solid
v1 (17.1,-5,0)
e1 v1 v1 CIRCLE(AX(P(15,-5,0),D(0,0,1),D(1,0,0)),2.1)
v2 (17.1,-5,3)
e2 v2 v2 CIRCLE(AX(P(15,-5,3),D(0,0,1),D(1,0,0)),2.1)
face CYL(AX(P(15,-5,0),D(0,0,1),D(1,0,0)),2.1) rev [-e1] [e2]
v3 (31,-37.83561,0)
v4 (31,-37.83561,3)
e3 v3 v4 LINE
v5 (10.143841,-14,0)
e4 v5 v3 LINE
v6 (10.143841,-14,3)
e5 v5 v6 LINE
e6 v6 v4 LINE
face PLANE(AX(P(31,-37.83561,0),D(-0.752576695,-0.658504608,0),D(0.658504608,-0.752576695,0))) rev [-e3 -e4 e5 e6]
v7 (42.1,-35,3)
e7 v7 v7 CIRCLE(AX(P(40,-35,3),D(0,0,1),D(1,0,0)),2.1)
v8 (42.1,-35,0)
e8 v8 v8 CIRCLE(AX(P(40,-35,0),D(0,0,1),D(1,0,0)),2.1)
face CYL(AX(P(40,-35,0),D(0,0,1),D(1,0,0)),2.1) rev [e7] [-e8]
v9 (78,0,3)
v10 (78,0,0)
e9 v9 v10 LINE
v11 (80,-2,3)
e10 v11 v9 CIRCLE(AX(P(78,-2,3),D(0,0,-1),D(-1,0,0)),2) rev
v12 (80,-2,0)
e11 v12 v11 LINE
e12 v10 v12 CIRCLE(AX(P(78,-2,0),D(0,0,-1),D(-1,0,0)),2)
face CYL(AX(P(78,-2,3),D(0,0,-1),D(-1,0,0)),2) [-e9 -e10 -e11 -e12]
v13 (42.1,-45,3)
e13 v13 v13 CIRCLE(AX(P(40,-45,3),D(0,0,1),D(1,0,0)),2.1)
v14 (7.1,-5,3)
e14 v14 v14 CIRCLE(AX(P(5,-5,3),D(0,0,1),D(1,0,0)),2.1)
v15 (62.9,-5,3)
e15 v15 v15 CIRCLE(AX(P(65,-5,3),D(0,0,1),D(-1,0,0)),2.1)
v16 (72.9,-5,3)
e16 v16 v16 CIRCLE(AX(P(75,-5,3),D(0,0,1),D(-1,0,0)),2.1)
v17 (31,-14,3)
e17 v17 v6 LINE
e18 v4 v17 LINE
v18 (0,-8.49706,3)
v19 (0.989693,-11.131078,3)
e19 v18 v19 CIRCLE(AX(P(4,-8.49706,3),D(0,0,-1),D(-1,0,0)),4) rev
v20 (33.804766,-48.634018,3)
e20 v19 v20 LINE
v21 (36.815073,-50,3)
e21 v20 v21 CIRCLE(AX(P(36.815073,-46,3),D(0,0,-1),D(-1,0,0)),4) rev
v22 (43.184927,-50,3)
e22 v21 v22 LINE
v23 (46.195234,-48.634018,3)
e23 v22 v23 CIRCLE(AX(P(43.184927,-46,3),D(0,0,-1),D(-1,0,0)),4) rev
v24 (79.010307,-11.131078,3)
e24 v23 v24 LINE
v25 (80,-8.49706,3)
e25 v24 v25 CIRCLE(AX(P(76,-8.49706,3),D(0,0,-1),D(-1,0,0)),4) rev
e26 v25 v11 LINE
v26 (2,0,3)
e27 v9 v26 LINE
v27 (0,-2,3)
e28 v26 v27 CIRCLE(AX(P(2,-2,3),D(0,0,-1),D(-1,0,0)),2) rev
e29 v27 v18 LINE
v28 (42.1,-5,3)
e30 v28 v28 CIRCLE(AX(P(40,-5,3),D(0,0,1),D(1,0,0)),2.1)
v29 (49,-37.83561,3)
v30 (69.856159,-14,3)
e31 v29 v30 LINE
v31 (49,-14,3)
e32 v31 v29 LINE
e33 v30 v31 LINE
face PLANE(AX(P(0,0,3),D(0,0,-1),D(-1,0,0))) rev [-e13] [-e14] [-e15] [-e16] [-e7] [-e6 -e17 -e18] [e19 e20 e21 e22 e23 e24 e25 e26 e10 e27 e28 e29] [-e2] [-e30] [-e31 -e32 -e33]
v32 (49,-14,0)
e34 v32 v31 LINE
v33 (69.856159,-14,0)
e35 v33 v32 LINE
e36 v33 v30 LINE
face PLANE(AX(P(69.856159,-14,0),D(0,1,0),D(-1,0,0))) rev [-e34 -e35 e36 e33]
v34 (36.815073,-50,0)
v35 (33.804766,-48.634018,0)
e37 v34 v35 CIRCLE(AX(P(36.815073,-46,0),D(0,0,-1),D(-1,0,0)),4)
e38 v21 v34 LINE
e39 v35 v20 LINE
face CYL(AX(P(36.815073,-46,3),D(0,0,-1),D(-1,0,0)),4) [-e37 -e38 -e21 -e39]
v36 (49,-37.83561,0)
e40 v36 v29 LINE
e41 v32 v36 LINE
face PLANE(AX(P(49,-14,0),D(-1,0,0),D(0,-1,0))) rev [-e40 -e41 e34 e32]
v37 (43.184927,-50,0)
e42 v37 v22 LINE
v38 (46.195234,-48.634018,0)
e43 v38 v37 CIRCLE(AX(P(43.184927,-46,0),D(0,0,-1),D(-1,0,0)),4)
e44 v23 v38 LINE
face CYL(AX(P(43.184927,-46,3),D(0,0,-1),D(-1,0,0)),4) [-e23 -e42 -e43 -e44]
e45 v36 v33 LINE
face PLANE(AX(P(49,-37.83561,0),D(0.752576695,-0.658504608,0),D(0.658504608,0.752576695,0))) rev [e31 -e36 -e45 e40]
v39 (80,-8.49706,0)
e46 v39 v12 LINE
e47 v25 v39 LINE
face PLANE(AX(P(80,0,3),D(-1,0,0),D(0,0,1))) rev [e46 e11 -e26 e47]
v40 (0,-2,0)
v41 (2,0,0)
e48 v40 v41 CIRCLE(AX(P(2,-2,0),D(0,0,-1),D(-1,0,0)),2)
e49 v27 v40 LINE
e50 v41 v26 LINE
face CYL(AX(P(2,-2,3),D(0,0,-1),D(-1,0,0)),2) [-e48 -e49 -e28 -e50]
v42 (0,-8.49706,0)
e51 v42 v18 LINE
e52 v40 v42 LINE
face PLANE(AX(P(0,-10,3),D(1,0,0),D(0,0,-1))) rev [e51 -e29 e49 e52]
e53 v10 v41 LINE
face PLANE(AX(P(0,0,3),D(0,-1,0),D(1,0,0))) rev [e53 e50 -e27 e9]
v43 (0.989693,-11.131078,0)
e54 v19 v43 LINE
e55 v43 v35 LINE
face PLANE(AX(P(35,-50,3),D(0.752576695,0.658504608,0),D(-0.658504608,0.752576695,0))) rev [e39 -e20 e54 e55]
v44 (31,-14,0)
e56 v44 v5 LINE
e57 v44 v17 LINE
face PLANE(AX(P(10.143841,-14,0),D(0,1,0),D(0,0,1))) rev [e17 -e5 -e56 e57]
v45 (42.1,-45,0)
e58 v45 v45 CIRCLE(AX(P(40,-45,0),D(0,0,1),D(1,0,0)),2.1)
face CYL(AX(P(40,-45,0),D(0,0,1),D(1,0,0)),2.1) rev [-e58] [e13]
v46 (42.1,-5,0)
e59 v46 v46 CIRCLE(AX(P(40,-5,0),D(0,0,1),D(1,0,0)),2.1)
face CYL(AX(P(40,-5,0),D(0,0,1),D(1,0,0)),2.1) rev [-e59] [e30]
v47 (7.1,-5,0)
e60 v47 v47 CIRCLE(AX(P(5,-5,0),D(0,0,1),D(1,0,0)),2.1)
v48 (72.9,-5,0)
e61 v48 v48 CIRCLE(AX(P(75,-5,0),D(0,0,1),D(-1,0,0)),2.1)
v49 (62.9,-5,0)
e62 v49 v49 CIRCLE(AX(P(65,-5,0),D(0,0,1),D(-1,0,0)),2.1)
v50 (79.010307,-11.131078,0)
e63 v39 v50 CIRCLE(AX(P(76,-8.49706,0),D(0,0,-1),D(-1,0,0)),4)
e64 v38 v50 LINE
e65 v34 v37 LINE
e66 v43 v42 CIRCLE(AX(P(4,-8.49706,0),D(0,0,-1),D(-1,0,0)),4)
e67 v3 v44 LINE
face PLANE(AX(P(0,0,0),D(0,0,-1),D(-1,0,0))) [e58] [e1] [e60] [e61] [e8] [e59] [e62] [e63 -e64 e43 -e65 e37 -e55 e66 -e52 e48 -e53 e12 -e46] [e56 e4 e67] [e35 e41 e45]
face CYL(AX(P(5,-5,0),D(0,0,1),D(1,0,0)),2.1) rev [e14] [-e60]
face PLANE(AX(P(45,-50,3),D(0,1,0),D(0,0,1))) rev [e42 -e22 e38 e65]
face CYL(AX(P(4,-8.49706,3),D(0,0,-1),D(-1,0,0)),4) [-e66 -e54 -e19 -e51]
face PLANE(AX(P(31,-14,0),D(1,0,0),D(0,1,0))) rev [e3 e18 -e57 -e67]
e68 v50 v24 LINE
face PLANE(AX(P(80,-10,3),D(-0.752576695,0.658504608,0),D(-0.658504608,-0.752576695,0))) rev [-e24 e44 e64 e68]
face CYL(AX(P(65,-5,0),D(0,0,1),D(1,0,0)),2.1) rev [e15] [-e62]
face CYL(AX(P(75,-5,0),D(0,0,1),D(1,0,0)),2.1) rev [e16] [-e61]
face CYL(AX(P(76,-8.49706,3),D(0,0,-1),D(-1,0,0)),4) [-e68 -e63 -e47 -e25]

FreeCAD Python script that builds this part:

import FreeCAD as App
import Part
import Sketcher
from FreeCAD import Vector


def edges_at(feature, points):
    """Names of the edges that pass closest to the given points."""
    edges = feature.Shape.Edges
    near = lambda p: min(range(len(edges)), key=lambda i: edges[i].distToShape(Part.Vertex(*p))[0])
    return sorted({f"Edge{near(p) + 1}" for p in points})

doc = App.newDocument("Part")
params = doc.addObject("Spreadsheet::Sheet", "Params")
for row, (alias, value) in enumerate([
    ("sketch1_width", "80 mm"),
    ("sketch1_width2", "10 mm"),
    ("pad1_length", "3 mm"),
    ("sketch2_diameter", "4.2 mm"),
    ("fillet_radius", "2 mm"),
    ("fillet2_radius", "4 mm"),
], start=1):
    params.set(f"A{row}", alias)
    params.set(f"B{row}", "=" + value)
    params.setAlias(f"B{row}", alias)

body = doc.addObject("PartDesign::Body", "Body")

sketch1 = body.newObject("Sketcher::SketchObject", "Sketch")
sketch1.AttachmentSupport = (doc.getObject("XY_Plane"), [""])
sketch1.MapMode = "FlatFace"
sketch1.addGeometry([
    Part.LineSegment(Vector(80, 0, 0), Vector(0, 0, 0)),
    Part.LineSegment(Vector(0, 0, 0), Vector(0, -10, 0)),
    Part.LineSegment(Vector(0, -10, 0), Vector(35, -50, 0)),
    Part.LineSegment(Vector(35, -50, 0), Vector(45, -50, 0)),
    Part.LineSegment(Vector(45, -50, 0), Vector(80, -10, 0)),
    Part.LineSegment(Vector(80, -10, 0), Vector(80, 0, 0)),
], False)
sketch1.addConstraint([
    Sketcher.Constraint("Coincident", 0, 2, 1, 1),
    Sketcher.Constraint("Coincident", 1, 2, 2, 1),
    Sketcher.Constraint("Coincident", 2, 2, 3, 1),
    Sketcher.Constraint("Coincident", 3, 2, 4, 1),
    Sketcher.Constraint("Coincident", 4, 2, 5, 1),
    Sketcher.Constraint("Coincident", 5, 2, 0, 1),
    Sketcher.Constraint("Horizontal", 0),
    Sketcher.Constraint("Vertical", 1),
    Sketcher.Constraint("Horizontal", 3),
    Sketcher.Constraint("Vertical", 5),
    Sketcher.Constraint("Coincident", 0, 2, -1, 1),
    Sketcher.Constraint("Horizontal", 1, 2, 4, 2),
    Sketcher.Constraint("Equal", 3, 1),
    Sketcher.Constraint("Equal", 2, 4),
    Sketcher.Constraint("DistanceX", 0, 2, 0, 1, 80.0),
    Sketcher.Constraint("DistanceX", 3, 1, 3, 2, 10.0),
    Sketcher.Constraint("DistanceY", 2, 2, -1, 1, 50.0),
])
sketch1.setExpression("Constraints[14]", "Params.sketch1_width")
sketch1.setExpression("Constraints[15]", "Params.sketch1_width2")
pad1 = body.newObject("PartDesign::Pad", "Pad")
pad1.Profile = sketch1
pad1.setExpression("Length", "Params.pad1_length")

sketch2 = body.newObject("Sketcher::SketchObject", "Sketch001")
sketch2.AttachmentSupport = (doc.getObject("XY_Plane"), [""])
sketch2.MapMode = "FlatFace"
sketch2.AttachmentOffset = App.Placement(Vector(0, 0, 3), App.Rotation())
sketch2.addGeometry([
    Part.Circle(Vector(5, -5, 0), Vector(0, 0, 1), 2.1),
    Part.Circle(Vector(15, -5, 0), Vector(0, 0, 1), 2.1),
    Part.Circle(Vector(65, -5, 0), Vector(0, 0, 1), 2.1),
    Part.Circle(Vector(75, -5, 0), Vector(0, 0, 1), 2.1),
    Part.Circle(Vector(40, -45, 0), Vector(0, 0, 1), 2.1),
    Part.Circle(Vector(40, -35, 0), Vector(0, 0, 1), 2.1),
    Part.Circle(Vector(40, -5, 0), Vector(0, 0, 1), 2.1),
], False)
sketch2.addConstraint([
    Sketcher.Constraint("Equal", 0, 1),
    Sketcher.Constraint("Equal", 1, 2),
    Sketcher.Constraint("Equal", 2, 3),
    Sketcher.Constraint("Equal", 3, 4),
    Sketcher.Constraint("Equal", 4, 5),
    Sketcher.Constraint("Equal", 5, 6),
    Sketcher.Constraint("Horizontal", 0, 3, 1, 3),
    Sketcher.Constraint("Horizontal", 1, 3, 2, 3),
    Sketcher.Constraint("Horizontal", 2, 3, 3, 3),
    Sketcher.Constraint("Horizontal", 3, 3, 6, 3),
    Sketcher.Constraint("Vertical", 4, 3, 5, 3),
    Sketcher.Constraint("Vertical", 5, 3, 6, 3),
    Sketcher.Constraint("Diameter", 0, 4.2),
    Sketcher.Constraint("DistanceX", -1, 1, 0, 3, 5.0),
    Sketcher.Constraint("DistanceY", 0, 3, -1, 1, 5.0),
    Sketcher.Constraint("DistanceX", -1, 1, 1, 3, 15.0),
    Sketcher.Constraint("DistanceX", -1, 1, 2, 3, 65.0),
    Sketcher.Constraint("DistanceX", -1, 1, 3, 3, 75.0),
    Sketcher.Constraint("DistanceX", -1, 1, 4, 3, 40.0),
    Sketcher.Constraint("DistanceY", 4, 3, -1, 1, 45.0),
    Sketcher.Constraint("DistanceY", 5, 3, -1, 1, 35.0),
])
sketch2.setExpression("Constraints[12]", "Params.sketch2_diameter")
pocket1 = body.newObject("PartDesign::Pocket", "Pocket")
pocket1.Profile = sketch2
pocket1.Type = "ThroughAll"

sketch3 = body.newObject("Sketcher::SketchObject", "Sketch002")
sketch3.AttachmentSupport = (doc.getObject("XY_Plane"), [""])
sketch3.MapMode = "FlatFace"
sketch3.AttachmentOffset = App.Placement(Vector(0, 0, 3), App.Rotation())
sketch3.addGeometry([
    Part.LineSegment(Vector(31, -14, 0), Vector(10.143841, -14, 0)),
    Part.LineSegment(Vector(10.143841, -14, 0), Vector(31, -37.83561, 0)),
    Part.LineSegment(Vector(31, -37.83561, 0), Vector(31, -14, 0)),
    Part.LineSegment(Vector(49, -37.83561, 0), Vector(69.856159, -14, 0)),
    Part.LineSegment(Vector(69.856159, -14, 0), Vector(49, -14, 0)),
    Part.LineSegment(Vector(49, -14, 0), Vector(49, -37.83561, 0)),
], False)
sketch3.addConstraint([
    Sketcher.Constraint("Coincident", 0, 2, 1, 1),
    Sketcher.Constraint("Coincident", 1, 2, 2, 1),
    Sketcher.Constraint("Coincident", 2, 2, 0, 1),
    Sketcher.Constraint("Coincident", 3, 2, 4, 1),
    Sketcher.Constraint("Coincident", 4, 2, 5, 1),
    Sketcher.Constraint("Coincident", 5, 2, 3, 1),
    Sketcher.Constraint("Horizontal", 0),
    Sketcher.Constraint("Vertical", 2),
    Sketcher.Constraint("Horizontal", 4),
    Sketcher.Constraint("Vertical", 5),
    Sketcher.Constraint("Horizontal", 2, 2, 3, 2),
    Sketcher.Constraint("Horizontal", 1, 2, 5, 2),
    Sketcher.Constraint("Equal", 0, 4),
    Sketcher.Constraint("DistanceY", 0, 2, -1, 1, 14.0),
    Sketcher.Constraint("DistanceX", -1, 1, 1, 2, 31.0),
    Sketcher.Constraint("DistanceX", -1, 1, 4, 2, 49.0),
    Sketcher.Constraint("Distance", 1, 31.672001),
    Sketcher.Constraint("DistanceX", 0, 2, 0, 1, 20.856159),
])
pocket2 = body.newObject("PartDesign::Pocket", "Pocket001")
pocket2.Profile = sketch3
pocket2.Type = "ThroughAll"
doc.recompute()

fillet = body.newObject("PartDesign::Fillet", "Fillet")
fillet.Base = (pocket2, edges_at(pocket2, [(0, 0, 1.5), (80, 0, 1.5)]))
fillet.setExpression("Radius", "Params.fillet_radius")
doc.recompute()

fillet2 = body.newObject("PartDesign::Fillet", "Fillet001")
fillet2.Base = (fillet, edges_at(fillet, [
    (80, -10, 1.5),
    (45, -50, 1.5),
    (35, -50, 1.5),
    (0, -10, 1.5),
]))
fillet2.setExpression("Radius", "Params.fillet2_radius")

doc.recompute()
